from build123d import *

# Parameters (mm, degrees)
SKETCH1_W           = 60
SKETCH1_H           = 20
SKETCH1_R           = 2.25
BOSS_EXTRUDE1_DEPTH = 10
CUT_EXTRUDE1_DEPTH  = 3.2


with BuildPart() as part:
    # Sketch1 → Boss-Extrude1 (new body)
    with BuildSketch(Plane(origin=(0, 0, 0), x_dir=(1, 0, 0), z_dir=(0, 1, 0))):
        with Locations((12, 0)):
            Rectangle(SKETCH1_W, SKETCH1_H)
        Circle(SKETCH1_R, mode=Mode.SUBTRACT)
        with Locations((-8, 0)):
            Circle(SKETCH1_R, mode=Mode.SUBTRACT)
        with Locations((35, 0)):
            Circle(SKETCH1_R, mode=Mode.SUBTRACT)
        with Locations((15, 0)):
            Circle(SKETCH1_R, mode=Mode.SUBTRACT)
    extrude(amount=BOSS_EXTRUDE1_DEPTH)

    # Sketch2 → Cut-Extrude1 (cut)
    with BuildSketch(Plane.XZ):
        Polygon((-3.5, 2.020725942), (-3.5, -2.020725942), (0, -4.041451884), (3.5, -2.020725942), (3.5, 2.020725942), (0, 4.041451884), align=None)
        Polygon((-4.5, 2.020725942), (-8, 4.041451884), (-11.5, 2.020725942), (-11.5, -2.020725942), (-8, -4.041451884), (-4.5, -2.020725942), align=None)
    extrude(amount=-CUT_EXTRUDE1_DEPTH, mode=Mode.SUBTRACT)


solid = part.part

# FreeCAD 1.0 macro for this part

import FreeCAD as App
import Part
import Sketcher
from FreeCAD import Vector
Q = App.Units.Quantity


def add_polygon(sketch, points):
    """Adds a closed chain of lines whose ends are joined by coincident constraints."""
    first, n = sketch.GeometryCount, len(points)
    for a, b in zip(points, points[1:] + points[:1]):
        sketch.addGeometry(Part.LineSegment(App.Vector(*a, 0), App.Vector(*b, 0)), False)
    for i in range(n):
        sketch.addConstraint(Sketcher.Constraint("Coincident", first + i, 2, first + (i + 1) % n, 1))

doc = App.newDocument("Part")
body = doc.addObject("PartDesign::Body", "Body")

sketch1 = doc.addObject("Sketcher::SketchObject", "Sketch")
body.addObject(sketch1)
sketch1.AttachmentSupport = (doc.XZ_Plane, [""])
sketch1.MapMode = "FlatFace"
add_polygon(sketch1, [(-18, -10), (-18, 10), (42, 10), (42, -10)])
sketch1.addGeometry(Part.Circle(Vector(-8, 0, 0), Vector(0, 0, 1), 2.2), False)
sketch1.addGeometry(Part.Circle(Vector(0, 0, 0), Vector(0, 0, 1), 2.2), False)
sketch1.addGeometry(Part.Circle(Vector(15, 0, 0), Vector(0, 0, 1), 2.2), False)
sketch1.addGeometry(Part.Circle(Vector(35, 0, 0), Vector(0, 0, 1), 2.2), False)
sketch1.addConstraint([
    Sketcher.Constraint("Vertical", 0),
    Sketcher.Constraint("Horizontal", 1),
    Sketcher.Constraint("Vertical", 2),
    Sketcher.Constraint("Horizontal", 3),
    Sketcher.Constraint("Coincident", 5, 3, -1, 1),
    Sketcher.Constraint("Equal", 4, 5),
    Sketcher.Constraint("Equal", 5, 6),
    Sketcher.Constraint("Equal", 6, 7),
    Sketcher.Constraint("PointOnObject", 4, 3, -1),
    Sketcher.Constraint("PointOnObject", 6, 3, -1),
    Sketcher.Constraint("PointOnObject", 7, 3, -1),
    Sketcher.Constraint("Diameter", 4, 4.5),
    Sketcher.Constraint("DistanceX", 1, 1, 1, 2, 60.0),
    Sketcher.Constraint("DistanceY", 0, 1, 0, 2, 20.0),
    Sketcher.Constraint("DistanceX", 4, 3, -1, 1, 8.0),
    Sketcher.Constraint("DistanceX", -1, 1, 6, 3, 15.0),
    Sketcher.Constraint("DistanceX", -1, 1, 7, 3, 35.0),
    Sketcher.Constraint("DistanceX", 0, 2, -1, 1, 18.0),
    Sketcher.Constraint("DistanceY", -1, 1, 0, 2, 10.0),
])
pad1 = doc.addObject("PartDesign::Pad", "Pad")
body.addObject(pad1)
pad1.Profile = sketch1
pad1.Length = 10
pad1.Reversed = True

sketch2 = doc.addObject("Sketcher::SketchObject", "Sketch001")
body.addObject(sketch2)
sketch2.AttachmentSupport = (doc.XZ_Plane, [""])
sketch2.MapMode = "FlatFace"
add_polygon(sketch2, [(-3.5, 2), (-3.5, -2), (0, -4), (3.5, -2), (3.5, 2), (0, 4)])
add_polygon(sketch2, [(-4.5, 2), (-8, 4), (-11.5, 2), (-11.5, -2), (-8, -4), (-4.5, -2)])
sketch2.addConstraint([
    Sketcher.Constraint("Vertical", 0),
    Sketcher.Constraint("Vertical", 3),
    Sketcher.Constraint("Vertical", 8),
    Sketcher.Constraint("Vertical", 11),
    Sketcher.Constraint("Symmetric", 0, 2, 3, 2, -1, 1),
    Sketcher.Constraint("Symmetric", 1, 2, 4, 2, -1, 1),
    Sketcher.Constraint("Symmetric", 6, 2, 9, 2, -1),
    Sketcher.Constraint("PointOnObject", 1, 2, -2),
    Sketcher.Constraint("Parallel", 2, 5),
    Sketcher.Constraint("Parallel", 4, 6),
    Sketcher.Constraint("Parallel", 5, 7),
    Sketcher.Constraint("Parallel", 6, 9),
    Sketcher.Constraint("Parallel", 7, 10),
    Sketcher.Constraint("Horizontal", 0, 2, 2, 2),
    Sketcher.Constraint("Horizontal", 4, 2, 6, 2),
    Sketcher.Constraint("Horizontal", 5, 2, 7, 2),
    Sketcher.Constraint("Horizontal", 8, 2, 10, 2),
    Sketcher.Constraint("Angle", 1, Q("-30 deg")),
    Sketcher.Constraint("DistanceX", 6, 2, -1, 1, 8.0),
    Sketcher.Constraint("DistanceX", 0, 2, 2, 2, 7.0),
    Sketcher.Constraint("DistanceY", 0, 2, 0, 1, 4.041452),
])
pocket1 = doc.addObject("PartDesign::Pocket", "Pocket")
body.addObject(pocket1)
pocket1.Profile = sketch2
pocket1.Length = 3.2

doc.recompute()
